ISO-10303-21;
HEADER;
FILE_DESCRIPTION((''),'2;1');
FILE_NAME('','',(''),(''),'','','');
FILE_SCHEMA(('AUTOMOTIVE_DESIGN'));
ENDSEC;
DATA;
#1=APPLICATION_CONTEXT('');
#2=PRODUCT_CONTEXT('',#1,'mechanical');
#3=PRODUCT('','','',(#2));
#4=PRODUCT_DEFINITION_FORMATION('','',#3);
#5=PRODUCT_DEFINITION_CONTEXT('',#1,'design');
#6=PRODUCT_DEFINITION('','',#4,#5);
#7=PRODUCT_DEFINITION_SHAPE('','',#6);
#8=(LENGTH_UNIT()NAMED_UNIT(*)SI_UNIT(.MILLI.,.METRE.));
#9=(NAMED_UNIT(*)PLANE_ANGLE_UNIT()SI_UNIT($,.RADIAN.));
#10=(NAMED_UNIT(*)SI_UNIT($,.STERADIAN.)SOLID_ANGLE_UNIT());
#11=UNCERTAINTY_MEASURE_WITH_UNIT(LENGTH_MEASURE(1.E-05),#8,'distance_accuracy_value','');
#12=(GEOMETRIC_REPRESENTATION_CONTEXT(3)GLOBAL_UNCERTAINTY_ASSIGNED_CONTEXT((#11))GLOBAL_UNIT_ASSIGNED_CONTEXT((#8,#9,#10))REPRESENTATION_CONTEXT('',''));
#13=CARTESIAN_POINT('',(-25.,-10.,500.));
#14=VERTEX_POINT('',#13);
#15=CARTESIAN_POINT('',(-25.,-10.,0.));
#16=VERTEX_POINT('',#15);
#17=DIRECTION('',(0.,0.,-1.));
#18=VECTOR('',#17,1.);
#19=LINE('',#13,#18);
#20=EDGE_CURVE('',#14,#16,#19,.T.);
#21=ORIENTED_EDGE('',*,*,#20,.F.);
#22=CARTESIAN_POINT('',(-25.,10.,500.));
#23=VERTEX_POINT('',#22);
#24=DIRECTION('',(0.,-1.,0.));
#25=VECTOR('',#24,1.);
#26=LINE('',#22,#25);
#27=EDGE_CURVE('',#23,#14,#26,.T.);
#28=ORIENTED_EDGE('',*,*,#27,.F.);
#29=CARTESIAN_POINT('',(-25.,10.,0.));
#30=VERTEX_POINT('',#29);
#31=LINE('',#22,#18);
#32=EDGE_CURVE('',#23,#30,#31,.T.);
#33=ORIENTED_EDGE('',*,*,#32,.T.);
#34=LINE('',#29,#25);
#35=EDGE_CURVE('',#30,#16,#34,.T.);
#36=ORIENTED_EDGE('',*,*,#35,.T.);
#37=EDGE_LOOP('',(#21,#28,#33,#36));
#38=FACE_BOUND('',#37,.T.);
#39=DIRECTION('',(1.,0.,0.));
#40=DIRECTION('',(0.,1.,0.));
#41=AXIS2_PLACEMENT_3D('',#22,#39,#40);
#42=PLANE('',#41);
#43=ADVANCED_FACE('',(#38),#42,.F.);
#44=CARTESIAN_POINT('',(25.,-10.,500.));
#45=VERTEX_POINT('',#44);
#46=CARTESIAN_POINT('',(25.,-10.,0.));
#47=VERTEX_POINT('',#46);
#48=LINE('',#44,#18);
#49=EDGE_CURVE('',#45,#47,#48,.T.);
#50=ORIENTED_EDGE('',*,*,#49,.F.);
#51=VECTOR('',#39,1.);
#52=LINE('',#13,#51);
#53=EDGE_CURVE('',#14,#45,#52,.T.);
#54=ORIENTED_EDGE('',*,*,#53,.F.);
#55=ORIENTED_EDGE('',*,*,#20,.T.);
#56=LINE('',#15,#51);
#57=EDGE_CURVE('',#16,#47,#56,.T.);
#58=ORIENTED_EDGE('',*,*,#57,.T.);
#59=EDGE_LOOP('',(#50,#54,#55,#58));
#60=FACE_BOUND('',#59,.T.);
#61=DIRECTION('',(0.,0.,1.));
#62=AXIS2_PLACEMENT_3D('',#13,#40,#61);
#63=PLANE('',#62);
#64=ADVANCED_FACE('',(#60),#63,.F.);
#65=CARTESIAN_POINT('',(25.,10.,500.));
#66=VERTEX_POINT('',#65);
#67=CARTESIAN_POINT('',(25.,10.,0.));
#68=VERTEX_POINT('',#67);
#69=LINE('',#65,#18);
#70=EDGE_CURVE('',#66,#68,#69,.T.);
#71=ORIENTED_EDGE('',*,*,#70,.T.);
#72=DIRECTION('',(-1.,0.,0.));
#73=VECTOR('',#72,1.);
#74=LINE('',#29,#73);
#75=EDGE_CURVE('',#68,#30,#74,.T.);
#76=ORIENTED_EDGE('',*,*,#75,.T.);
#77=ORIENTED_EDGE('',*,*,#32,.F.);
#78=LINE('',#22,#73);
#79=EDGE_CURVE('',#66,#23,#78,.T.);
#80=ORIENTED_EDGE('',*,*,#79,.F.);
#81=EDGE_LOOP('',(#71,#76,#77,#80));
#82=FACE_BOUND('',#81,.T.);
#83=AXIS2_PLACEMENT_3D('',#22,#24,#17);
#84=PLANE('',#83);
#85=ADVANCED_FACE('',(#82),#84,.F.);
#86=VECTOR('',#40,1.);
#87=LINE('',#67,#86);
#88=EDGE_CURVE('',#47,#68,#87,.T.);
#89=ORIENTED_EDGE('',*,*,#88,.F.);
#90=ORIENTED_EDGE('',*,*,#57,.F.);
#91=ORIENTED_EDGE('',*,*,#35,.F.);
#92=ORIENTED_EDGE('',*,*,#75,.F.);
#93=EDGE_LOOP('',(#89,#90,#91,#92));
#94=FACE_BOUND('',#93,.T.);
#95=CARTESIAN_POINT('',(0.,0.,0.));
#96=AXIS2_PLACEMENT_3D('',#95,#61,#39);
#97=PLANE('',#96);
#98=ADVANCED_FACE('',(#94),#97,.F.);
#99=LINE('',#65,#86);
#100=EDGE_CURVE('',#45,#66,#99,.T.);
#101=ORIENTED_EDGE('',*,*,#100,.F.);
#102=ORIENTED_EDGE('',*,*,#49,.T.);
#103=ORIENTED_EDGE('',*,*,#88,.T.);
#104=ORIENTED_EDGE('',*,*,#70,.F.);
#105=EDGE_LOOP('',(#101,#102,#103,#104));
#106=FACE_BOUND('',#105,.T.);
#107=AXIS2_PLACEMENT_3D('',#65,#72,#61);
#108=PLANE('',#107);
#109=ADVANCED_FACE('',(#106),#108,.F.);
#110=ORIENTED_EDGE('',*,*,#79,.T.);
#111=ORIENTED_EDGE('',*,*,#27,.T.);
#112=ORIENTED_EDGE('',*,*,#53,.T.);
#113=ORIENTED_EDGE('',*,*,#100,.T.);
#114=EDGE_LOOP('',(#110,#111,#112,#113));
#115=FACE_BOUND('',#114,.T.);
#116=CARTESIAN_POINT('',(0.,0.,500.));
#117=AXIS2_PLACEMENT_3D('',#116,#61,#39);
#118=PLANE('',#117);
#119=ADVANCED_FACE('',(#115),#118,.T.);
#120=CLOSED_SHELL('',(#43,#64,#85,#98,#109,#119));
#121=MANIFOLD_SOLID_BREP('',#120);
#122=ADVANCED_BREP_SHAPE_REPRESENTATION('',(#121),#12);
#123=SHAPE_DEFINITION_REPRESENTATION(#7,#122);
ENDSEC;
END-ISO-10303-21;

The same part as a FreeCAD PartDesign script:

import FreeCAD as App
import Part
import Sketcher
from FreeCAD import Vector

doc = App.newDocument("Part")
body = doc.addObject("PartDesign::Body", "Body")

# Sketch on XY plane
sketch1 = body.newObject("Sketcher::SketchObject", "Sketch")
sketch1.AttachmentSupport = (doc.getObject("XY_Plane"), [""])
sketch1.MapMode = "FlatFace"
sketch1.addGeometry([
    Part.LineSegment(Vector(-25, 10, 0), Vector(-25, -10, 0)),
    Part.LineSegment(Vector(-25, -10, 0), Vector(25, -10, 0)),
    Part.LineSegment(Vector(25, -10, 0), Vector(25, 10, 0)),
    Part.LineSegment(Vector(25, 10, 0), Vector(-25, 10, 0)),
], False)
sketch1.addConstraint([
    Sketcher.Constraint("Coincident", 0, 2, 1, 1),
    Sketcher.Constraint("Coincident", 1, 2, 2, 1),
    Sketcher.Constraint("Coincident", 2, 2, 3, 1),
    Sketcher.Constraint("Coincident", 3, 2, 0, 1),
    Sketcher.Constraint("Vertical", 0),
    Sketcher.Constraint("Horizontal", 1),
    Sketcher.Constraint("Vertical", 2),
    Sketcher.Constraint("Horizontal", 3),
    Sketcher.Constraint("Symmetric", 0, 2, 2, 2, -1, 1),
    Sketcher.Constraint("DistanceX", 1, 1, 1, 2, 50.0),
    Sketcher.Constraint("DistanceY", 0, 2, 0, 1, 20.0),
])
pad1 = body.newObject("PartDesign::Pad", "Pad")
pad1.Profile = sketch1
pad1.Length = 500

doc.recompute()
